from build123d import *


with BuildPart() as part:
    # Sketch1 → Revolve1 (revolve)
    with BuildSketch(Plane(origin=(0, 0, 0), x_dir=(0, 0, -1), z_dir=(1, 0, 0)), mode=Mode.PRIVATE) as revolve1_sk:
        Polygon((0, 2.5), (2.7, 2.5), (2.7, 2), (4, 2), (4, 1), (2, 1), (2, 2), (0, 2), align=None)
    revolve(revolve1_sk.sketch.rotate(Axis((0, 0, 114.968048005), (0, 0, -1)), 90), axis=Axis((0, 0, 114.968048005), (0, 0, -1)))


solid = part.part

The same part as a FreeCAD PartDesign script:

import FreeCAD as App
import Part
import Sketcher
from FreeCAD import Vector
Q = App.Units.Quantity

doc = App.newDocument("Part")
body = doc.addObject("PartDesign::Body", "Body")

# Sketch on YZ plane
sketch1 = body.newObject("Sketcher::SketchObject", "Sketch")
sketch1.AttachmentSupport = (doc.getObject("YZ_Plane"), [""])
sketch1.MapMode = "FlatFace"
sketch1.addGeometry([
    Part.LineSegment(Vector(2.5, -2.7, 0), Vector(2.5, 0, 0)),  # 0
    Part.LineSegment(Vector(2.5, 0, 0), Vector(2, 0, 0)),  # 1
    Part.LineSegment(Vector(2, 0, 0), Vector(2, -2, 0)),  # 2
    Part.LineSegment(Vector(2, -2, 0), Vector(1, -2, 0)),  # 3
    Part.LineSegment(Vector(1, -2, 0), Vector(1, -4, 0)),  # 4
    Part.LineSegment(Vector(1, -4, 0), Vector(2, -4, 0)),  # 5
    Part.LineSegment(Vector(2, -4, 0), Vector(2, -2.7, 0)),  # 6
    Part.LineSegment(Vector(2, -2.7, 0), Vector(2.5, -2.7, 0)),  # 7
], False)
sketch1.addConstraint([
    Sketcher.Constraint("Coincident", 0, 2, 1, 1),
    Sketcher.Constraint("Coincident", 1, 2, 2, 1),
    Sketcher.Constraint("Coincident", 2, 2, 3, 1),
    Sketcher.Constraint("Coincident", 3, 2, 4, 1),
    Sketcher.Constraint("Coincident", 4, 2, 5, 1),
    Sketcher.Constraint("Coincident", 5, 2, 6, 1),
    Sketcher.Constraint("Coincident", 6, 2, 7, 1),
    Sketcher.Constraint("Coincident", 7, 2, 0, 1),
    Sketcher.Constraint("Vertical", 0),
    Sketcher.Constraint("Horizontal", 1),
    Sketcher.Constraint("Vertical", 2),
    Sketcher.Constraint("Horizontal", 3),
    Sketcher.Constraint("Vertical", 4),
    Sketcher.Constraint("Horizontal", 5),
    Sketcher.Constraint("Vertical", 6),
    Sketcher.Constraint("Horizontal", 7),
    Sketcher.Constraint("PointOnObject", 0, 2, -1),
    Sketcher.Constraint("Vertical", 2, 2, 5, 2),
    Sketcher.Constraint("Equal", 2, 4),
    Sketcher.Constraint("DistanceX", 3, 2, 3, 1, Q("1 mm")),
    Sketcher.Constraint("DistanceY", 2, 2, 2, 1, Q("2 mm")),
    Sketcher.Constraint("DistanceX", 1, 2, 1, 1, Q("0.5 mm")),
    Sketcher.Constraint("DistanceY", 0, 1, 0, 2, Q("2.7 mm")),
    Sketcher.Constraint("DistanceX", -1, 1, 1, 2, Q("2 mm")),
])
revolution = body.newObject("PartDesign::Revolution", "Revolution")
revolution.Profile = sketch1
revolution.ReferenceAxis = (sketch1, ["V_Axis"])
revolution.Angle = 360

doc.recompute()
